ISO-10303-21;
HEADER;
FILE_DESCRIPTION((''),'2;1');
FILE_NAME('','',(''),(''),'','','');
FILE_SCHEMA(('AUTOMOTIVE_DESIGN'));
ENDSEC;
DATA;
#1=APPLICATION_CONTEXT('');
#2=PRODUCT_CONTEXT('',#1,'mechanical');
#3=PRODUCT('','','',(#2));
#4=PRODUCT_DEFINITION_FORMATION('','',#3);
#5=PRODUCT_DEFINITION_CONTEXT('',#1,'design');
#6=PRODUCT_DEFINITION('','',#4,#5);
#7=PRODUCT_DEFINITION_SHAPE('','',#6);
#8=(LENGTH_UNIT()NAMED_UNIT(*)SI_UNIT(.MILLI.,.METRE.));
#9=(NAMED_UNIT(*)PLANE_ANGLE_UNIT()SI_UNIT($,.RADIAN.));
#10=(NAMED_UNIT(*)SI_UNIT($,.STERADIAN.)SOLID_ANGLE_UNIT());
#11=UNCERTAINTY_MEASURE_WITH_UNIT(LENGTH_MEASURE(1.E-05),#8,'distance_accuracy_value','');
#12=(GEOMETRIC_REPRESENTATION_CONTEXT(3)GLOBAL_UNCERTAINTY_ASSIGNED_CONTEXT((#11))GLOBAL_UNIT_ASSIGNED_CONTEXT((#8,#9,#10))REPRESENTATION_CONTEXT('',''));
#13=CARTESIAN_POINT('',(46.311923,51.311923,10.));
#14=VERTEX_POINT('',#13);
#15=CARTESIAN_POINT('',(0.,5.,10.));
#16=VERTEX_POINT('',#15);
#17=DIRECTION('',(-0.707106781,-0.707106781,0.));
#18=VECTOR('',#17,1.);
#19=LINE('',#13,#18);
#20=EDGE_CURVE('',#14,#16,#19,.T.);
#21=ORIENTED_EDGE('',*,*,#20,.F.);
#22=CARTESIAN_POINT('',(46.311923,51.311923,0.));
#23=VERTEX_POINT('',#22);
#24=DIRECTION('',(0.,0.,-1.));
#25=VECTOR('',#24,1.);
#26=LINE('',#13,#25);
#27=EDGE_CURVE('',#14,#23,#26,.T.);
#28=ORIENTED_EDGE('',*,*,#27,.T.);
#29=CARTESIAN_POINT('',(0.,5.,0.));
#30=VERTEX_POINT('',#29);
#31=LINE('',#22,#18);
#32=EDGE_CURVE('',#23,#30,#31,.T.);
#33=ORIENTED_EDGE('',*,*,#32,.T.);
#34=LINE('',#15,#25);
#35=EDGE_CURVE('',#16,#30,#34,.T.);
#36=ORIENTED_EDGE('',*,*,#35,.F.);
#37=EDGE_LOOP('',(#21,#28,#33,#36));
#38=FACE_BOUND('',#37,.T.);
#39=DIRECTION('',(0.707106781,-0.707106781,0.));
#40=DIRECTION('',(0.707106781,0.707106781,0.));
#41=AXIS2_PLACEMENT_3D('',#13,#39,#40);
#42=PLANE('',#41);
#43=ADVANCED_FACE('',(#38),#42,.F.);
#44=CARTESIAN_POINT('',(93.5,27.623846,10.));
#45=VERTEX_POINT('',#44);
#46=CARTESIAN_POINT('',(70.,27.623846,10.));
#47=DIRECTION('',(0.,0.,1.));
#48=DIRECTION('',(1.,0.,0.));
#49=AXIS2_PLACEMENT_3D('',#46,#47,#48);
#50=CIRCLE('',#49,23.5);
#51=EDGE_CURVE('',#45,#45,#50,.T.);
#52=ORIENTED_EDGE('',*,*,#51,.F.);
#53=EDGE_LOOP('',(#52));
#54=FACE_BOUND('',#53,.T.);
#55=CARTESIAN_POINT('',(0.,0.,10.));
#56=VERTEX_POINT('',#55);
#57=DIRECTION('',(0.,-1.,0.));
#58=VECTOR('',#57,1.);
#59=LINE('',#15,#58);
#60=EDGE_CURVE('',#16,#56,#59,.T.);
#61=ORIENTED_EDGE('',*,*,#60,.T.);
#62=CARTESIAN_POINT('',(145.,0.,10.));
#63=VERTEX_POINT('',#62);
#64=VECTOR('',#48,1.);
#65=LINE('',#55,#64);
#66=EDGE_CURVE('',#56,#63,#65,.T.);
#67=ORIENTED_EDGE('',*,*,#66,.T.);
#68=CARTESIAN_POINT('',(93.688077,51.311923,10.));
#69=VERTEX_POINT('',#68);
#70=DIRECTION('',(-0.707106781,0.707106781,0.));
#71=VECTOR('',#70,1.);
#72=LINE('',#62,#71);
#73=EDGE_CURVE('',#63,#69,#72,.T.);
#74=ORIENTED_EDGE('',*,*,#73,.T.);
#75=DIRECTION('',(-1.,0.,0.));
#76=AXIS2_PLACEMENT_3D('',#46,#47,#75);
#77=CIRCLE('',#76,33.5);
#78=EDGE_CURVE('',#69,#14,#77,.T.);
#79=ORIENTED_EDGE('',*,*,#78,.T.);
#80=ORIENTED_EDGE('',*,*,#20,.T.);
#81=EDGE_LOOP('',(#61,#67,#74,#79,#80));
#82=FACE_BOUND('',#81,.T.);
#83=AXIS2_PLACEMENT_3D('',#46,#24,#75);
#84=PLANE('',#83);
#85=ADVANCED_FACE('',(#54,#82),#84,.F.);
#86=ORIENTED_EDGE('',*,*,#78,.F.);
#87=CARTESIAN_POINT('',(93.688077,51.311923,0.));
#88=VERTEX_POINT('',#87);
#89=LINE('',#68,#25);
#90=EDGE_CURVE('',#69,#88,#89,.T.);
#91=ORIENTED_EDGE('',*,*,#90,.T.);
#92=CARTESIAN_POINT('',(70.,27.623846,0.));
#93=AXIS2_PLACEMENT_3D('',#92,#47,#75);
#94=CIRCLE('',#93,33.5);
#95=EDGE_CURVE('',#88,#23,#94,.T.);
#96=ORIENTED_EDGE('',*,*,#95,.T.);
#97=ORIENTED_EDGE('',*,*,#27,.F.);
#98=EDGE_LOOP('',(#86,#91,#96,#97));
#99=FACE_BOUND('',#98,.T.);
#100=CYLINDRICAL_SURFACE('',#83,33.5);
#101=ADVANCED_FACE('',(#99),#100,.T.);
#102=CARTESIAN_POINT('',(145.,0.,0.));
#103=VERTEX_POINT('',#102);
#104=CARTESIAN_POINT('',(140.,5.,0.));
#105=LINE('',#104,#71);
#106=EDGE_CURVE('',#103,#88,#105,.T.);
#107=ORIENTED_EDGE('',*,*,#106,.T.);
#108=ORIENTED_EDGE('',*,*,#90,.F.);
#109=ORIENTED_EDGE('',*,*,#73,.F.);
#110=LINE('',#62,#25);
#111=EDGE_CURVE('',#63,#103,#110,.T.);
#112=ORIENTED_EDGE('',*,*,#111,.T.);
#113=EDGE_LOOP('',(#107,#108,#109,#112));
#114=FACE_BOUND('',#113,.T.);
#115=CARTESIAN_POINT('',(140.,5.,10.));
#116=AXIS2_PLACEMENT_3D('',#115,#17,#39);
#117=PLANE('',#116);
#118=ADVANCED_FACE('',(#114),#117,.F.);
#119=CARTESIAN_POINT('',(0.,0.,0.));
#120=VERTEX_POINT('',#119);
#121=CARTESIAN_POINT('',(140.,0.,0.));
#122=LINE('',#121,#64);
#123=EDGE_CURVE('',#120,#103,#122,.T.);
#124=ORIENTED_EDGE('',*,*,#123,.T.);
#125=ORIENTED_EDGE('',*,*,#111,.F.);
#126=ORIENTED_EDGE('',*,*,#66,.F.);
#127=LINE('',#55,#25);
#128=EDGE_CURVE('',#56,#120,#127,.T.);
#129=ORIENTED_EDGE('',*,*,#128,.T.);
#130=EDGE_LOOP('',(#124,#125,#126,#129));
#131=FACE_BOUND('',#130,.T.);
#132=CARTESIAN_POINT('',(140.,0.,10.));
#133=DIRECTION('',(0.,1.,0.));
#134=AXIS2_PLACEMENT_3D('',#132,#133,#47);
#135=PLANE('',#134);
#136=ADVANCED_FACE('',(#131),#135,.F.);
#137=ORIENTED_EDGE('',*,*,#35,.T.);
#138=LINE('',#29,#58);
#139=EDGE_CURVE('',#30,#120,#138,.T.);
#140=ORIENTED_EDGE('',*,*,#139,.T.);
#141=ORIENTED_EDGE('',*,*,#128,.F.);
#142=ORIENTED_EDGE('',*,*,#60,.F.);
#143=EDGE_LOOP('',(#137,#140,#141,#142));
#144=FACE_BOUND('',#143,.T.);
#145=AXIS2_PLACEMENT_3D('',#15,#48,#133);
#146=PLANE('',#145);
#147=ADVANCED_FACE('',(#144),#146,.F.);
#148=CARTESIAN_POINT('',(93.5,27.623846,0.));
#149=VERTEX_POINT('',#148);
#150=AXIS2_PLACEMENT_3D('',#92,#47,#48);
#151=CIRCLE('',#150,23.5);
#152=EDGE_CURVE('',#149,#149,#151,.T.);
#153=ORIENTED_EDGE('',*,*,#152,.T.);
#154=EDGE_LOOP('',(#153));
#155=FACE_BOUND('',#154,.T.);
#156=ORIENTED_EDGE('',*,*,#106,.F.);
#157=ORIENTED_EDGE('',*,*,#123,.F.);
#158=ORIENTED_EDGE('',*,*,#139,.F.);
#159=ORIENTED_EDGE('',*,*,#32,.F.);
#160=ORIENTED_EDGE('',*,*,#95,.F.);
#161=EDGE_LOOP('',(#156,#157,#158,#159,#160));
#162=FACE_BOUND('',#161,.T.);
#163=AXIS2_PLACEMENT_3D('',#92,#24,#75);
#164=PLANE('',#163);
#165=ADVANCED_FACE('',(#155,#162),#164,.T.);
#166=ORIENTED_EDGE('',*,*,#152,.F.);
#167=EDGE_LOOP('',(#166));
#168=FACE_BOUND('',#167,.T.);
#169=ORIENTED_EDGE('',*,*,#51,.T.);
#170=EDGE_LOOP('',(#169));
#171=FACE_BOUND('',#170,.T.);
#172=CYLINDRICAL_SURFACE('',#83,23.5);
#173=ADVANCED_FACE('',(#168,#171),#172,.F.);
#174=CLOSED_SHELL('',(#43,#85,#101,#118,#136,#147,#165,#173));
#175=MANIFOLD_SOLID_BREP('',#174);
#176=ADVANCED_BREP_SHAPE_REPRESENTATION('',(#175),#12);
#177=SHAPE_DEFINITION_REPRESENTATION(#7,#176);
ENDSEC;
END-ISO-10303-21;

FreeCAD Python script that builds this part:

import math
import FreeCAD as App
import Part
import Sketcher
from FreeCAD import Vector
Q = App.Units.Quantity

doc = App.newDocument("Part")
body = doc.addObject("PartDesign::Body", "Body")

# Sketch on XY plane
sketch1 = body.newObject("Sketcher::SketchObject", "Sketch")
sketch1.AttachmentSupport = (doc.getObject("XY_Plane"), [""])
sketch1.MapMode = "FlatFace"
sketch1.addGeometry([
    Part.LineSegment(Vector(0, 0, 0), Vector(145, 0, 0)),  # 0
    Part.LineSegment(Vector(145, 0, 0), Vector(93.688077, 51.311923, 0)),  # 1
    Part.ArcOfCircle(Part.Circle(Vector(70, 27.623846, 0), Vector(0, 0, 1), 33.5), math.radians(45), math.radians(135)),  # 2
    Part.LineSegment(Vector(46.311923, 51.311923, 0), Vector(0, 5, 0)),  # 3
    Part.LineSegment(Vector(0, 5, 0), Vector(0, 0, 0)),  # 4
    Part.Circle(Vector(70, 27.623846, 0), Vector(0, 0, 1), 23.5),  # 5
], False)
sketch1.addConstraint([
    Sketcher.Constraint("Coincident", 0, 2, 1, 1),
    Sketcher.Constraint("Tangent", 1, 2, 2, 1),
    Sketcher.Constraint("Tangent", 2, 2, 3, 1),
    Sketcher.Constraint("Coincident", 3, 2, 4, 1),
    Sketcher.Constraint("Coincident", 4, 2, 0, 1),
    Sketcher.Constraint("Horizontal", 0),
    Sketcher.Constraint("Vertical", 4),
    Sketcher.Constraint("Coincident", 4, 2, -1, 1),
    Sketcher.Constraint("Coincident", 5, 3, 2, 3),
    Sketcher.Constraint("Perpendicular", 1, 3),
    Sketcher.Constraint("Horizontal", 1, 2, 2, 2),
    Sketcher.Constraint("Diameter", 5, Q("47 mm")),
    Sketcher.Constraint("Radius", 2, Q("33.5 mm")),
    Sketcher.Constraint("DistanceX", 0, 1, 0, 2, Q("145 mm")),
    Sketcher.Constraint("DistanceY", 4, 2, 4, 1, Q("5 mm")),
])
pad1 = body.newObject("PartDesign::Pad", "Pad")
pad1.Profile = sketch1
pad1.Length = 10

doc.recompute()
